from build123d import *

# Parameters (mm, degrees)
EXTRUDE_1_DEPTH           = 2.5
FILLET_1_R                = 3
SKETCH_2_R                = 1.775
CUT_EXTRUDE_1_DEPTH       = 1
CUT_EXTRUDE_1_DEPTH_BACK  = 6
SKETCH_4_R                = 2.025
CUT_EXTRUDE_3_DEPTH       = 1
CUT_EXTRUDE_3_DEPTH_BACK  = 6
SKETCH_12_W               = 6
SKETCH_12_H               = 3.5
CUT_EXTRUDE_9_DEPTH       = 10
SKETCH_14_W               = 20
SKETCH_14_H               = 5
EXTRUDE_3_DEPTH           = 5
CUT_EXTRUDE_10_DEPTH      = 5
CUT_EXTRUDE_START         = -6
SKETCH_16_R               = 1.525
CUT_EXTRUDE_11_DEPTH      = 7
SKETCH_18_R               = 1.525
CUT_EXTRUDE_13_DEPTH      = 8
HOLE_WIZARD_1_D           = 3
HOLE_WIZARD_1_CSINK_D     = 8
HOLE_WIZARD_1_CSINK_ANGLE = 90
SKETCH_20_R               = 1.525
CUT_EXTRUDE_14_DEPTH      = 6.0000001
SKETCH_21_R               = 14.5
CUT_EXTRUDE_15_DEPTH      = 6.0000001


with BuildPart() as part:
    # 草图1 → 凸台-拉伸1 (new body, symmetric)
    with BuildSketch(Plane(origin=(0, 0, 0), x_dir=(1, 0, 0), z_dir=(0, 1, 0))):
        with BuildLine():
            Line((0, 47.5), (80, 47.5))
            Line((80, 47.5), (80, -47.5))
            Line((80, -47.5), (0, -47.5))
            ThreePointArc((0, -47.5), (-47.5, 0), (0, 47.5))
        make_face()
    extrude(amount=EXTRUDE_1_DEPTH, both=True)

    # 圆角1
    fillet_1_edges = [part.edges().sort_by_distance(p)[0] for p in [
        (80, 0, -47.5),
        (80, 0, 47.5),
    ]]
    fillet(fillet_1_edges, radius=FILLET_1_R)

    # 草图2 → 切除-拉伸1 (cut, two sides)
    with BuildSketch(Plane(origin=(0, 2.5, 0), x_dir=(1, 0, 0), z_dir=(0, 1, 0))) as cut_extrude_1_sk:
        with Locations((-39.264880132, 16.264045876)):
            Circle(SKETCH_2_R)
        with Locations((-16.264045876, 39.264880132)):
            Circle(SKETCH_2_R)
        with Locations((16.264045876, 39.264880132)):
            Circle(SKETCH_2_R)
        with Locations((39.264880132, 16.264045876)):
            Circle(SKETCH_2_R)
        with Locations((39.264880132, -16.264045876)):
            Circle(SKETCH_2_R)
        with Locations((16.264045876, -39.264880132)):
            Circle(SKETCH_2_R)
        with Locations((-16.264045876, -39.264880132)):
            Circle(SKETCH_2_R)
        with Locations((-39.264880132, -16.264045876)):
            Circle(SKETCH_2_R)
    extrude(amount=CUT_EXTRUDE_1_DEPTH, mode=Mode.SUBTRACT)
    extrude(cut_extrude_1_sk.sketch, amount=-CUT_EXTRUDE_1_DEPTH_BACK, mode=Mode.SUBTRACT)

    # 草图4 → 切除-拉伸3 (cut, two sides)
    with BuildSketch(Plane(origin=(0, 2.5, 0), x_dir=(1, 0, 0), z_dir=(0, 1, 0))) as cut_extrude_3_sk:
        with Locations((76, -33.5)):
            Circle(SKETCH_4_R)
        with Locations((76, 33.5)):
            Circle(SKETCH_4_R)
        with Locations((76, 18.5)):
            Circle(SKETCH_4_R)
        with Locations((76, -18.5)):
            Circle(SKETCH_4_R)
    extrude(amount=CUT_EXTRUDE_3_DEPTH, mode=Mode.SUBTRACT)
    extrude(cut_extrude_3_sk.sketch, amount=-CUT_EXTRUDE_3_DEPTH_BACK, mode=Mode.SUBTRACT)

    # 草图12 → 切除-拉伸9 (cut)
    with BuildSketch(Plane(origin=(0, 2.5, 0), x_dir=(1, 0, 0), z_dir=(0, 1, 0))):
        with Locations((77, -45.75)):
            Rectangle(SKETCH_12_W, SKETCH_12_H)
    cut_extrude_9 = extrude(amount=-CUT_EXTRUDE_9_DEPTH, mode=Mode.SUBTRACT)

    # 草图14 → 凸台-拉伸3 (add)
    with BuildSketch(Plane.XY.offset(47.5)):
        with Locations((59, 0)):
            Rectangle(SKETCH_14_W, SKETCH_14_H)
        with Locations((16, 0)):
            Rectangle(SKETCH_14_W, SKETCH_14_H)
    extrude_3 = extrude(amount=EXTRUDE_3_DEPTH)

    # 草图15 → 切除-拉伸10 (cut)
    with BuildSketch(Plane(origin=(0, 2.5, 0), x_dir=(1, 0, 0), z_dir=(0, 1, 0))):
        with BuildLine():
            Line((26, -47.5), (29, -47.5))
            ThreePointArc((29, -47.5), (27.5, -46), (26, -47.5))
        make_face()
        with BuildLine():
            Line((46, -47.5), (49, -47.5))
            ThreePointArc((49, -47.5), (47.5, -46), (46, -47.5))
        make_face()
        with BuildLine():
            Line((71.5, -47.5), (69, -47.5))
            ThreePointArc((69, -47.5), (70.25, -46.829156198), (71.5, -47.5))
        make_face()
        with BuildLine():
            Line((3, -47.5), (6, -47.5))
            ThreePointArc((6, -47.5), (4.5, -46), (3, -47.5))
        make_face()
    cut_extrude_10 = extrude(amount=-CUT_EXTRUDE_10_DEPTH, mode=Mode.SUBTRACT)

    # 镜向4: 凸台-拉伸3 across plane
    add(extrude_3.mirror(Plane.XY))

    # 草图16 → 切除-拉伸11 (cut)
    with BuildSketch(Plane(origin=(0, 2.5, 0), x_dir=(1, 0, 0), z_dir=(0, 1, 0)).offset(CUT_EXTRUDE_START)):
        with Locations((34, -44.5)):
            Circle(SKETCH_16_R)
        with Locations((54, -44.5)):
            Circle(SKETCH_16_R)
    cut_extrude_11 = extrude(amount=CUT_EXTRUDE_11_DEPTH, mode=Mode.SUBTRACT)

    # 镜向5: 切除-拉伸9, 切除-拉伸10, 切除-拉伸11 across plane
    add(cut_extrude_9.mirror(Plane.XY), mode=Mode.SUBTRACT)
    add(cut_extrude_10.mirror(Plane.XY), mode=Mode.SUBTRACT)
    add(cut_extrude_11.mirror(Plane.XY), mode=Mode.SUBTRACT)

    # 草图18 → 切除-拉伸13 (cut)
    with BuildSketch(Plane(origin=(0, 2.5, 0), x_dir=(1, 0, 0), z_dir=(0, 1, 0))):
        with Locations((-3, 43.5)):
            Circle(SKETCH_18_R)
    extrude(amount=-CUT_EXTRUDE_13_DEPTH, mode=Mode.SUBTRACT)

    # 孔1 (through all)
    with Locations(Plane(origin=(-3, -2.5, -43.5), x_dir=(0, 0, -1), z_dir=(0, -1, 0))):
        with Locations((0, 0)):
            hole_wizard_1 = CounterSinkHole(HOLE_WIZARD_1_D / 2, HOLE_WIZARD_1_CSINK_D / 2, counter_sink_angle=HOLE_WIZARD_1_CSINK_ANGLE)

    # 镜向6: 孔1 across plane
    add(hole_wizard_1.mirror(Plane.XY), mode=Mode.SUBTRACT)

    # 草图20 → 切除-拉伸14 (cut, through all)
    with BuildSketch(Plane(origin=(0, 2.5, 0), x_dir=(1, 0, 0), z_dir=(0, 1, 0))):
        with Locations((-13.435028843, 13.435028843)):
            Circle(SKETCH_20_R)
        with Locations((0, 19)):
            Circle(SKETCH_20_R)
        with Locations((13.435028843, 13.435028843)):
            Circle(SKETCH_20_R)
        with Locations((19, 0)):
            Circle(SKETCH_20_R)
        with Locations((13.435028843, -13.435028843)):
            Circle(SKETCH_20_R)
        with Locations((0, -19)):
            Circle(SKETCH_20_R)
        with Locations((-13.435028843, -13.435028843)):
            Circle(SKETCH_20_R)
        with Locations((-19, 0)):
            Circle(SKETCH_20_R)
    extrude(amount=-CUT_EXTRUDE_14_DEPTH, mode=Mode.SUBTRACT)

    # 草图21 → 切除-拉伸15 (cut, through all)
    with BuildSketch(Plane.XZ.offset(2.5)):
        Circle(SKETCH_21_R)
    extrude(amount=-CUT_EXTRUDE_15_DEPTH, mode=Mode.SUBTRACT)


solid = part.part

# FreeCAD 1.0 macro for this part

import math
import FreeCAD as App
import Part
import Sketcher


def edges_at(feature, points):
    """Names of the edges that pass closest to the given points."""
    edges = feature.Shape.Edges
    near = lambda p: min(range(len(edges)), key=lambda i: edges[i].distToShape(Part.Vertex(*p))[0])
    return sorted({f"Edge{near(p) + 1}" for p in points})


def add_polygon(sketch, points):
    """Adds a closed chain of lines whose ends are joined by coincident constraints."""
    first, n = sketch.GeometryCount, len(points)
    for a, b in zip(points, points[1:] + points[:1]):
        sketch.addGeometry(Part.LineSegment(App.Vector(*a, 0), App.Vector(*b, 0)), False)
    for i in range(n):
        sketch.addConstraint(Sketcher.Constraint("Coincident", first + i, 2, first + (i + 1) % n, 1))

doc = App.newDocument("Part")
body = doc.addObject("PartDesign::Body", "Body")

# Sketch on XZ plane
sketch1 = doc.addObject("Sketcher::SketchObject", "Sketch")
body.addObject(sketch1)
sketch1.AttachmentSupport = (doc.XZ_Plane, [""])
sketch1.MapMode = "FlatFace"
sketch1.addGeometry(Part.LineSegment(App.Vector(80, -48, 0), App.Vector(0, -48, 0)), False)
sketch1.addGeometry(Part.ArcOfCircle(Part.Circle(App.Vector(0, 0, 0), App.Vector(0, 0, 1), 48), math.radians(90), math.radians(270)), False)
sketch1.addGeometry(Part.LineSegment(App.Vector(0, 48, 0), App.Vector(80, 48, 0)), False)
sketch1.addGeometry(Part.LineSegment(App.Vector(80, 48, 0), App.Vector(80, -48, 0)), False)
sketch1.addConstraint(Sketcher.Constraint("Tangent", 0, 2, 1, 2))
sketch1.addConstraint(Sketcher.Constraint("Tangent", 1, 1, 2, 1))
sketch1.addConstraint(Sketcher.Constraint("Coincident", 2, 2, 3, 1))
sketch1.addConstraint(Sketcher.Constraint("Coincident", 3, 2, 0, 1))
sketch1.addConstraint(Sketcher.Constraint("Horizontal", 0))
sketch1.addConstraint(Sketcher.Constraint("Horizontal", 2))
sketch1.addConstraint(Sketcher.Constraint("Vertical", 3))
sketch1.addConstraint(Sketcher.Constraint("Coincident", 1, 3, -1, 1))
sketch1.addConstraint(Sketcher.Constraint("Radius", 1, 47.5))
sketch1.addConstraint(Sketcher.Constraint("DistanceX", 0, 2, 0, 1, 80.0))
pad1 = doc.addObject("PartDesign::Pad", "Pad")
body.addObject(pad1)
pad1.Profile = sketch1
pad1.Length = 5
pad1.Midplane = True
doc.recompute()

fillet = doc.addObject("PartDesign::Fillet", "Fillet")
body.addObject(fillet)
fillet.Base = (pad1, edges_at(pad1, [(80, 0, -47.5), (80, 0, 47.5)]))
fillet.Radius = 3

# Sketch on XZ plane
sketch2 = doc.addObject("Sketcher::SketchObject", "Sketch001")
body.addObject(sketch2)
sketch2.AttachmentSupport = (doc.XZ_Plane, [""])
sketch2.MapMode = "FlatFace"
sketch2.AttachmentOffset = App.Placement(App.Vector(0, 0, -2.5), App.Rotation())
sketch2.addGeometry(Part.Circle(App.Vector(-39.3, -16.3, 0), App.Vector(0, 0, 1), 1.8), False)
sketch2.addGeometry(Part.Circle(App.Vector(-16.3, -39.3, 0), App.Vector(0, 0, 1), 1.8), False)
sketch2.addGeometry(Part.Circle(App.Vector(16.3, -39.3, 0), App.Vector(0, 0, 1), 1.8), False)
sketch2.addGeometry(Part.Circle(App.Vector(39.3, -16.3, 0), App.Vector(0, 0, 1), 1.8), False)
sketch2.addGeometry(Part.Circle(App.Vector(39.3, 16.3, 0), App.Vector(0, 0, 1), 1.8), False)
sketch2.addGeometry(Part.Circle(App.Vector(16.3, 39.3, 0), App.Vector(0, 0, 1), 1.8), False)
sketch2.addGeometry(Part.Circle(App.Vector(-16.3, 39.3, 0), App.Vector(0, 0, 1), 1.8), False)
sketch2.addGeometry(Part.Circle(App.Vector(-39.3, 16.3, 0), App.Vector(0, 0, 1), 1.8), False)
sketch2.addConstraint(Sketcher.Constraint("Equal", 0, 1))
sketch2.addConstraint(Sketcher.Constraint("Equal", 1, 2))
sketch2.addConstraint(Sketcher.Constraint("Equal", 2, 3))
sketch2.addConstraint(Sketcher.Constraint("Equal", 3, 4))
sketch2.addConstraint(Sketcher.Constraint("Equal", 4, 5))
sketch2.addConstraint(Sketcher.Constraint("Equal", 5, 6))
sketch2.addConstraint(Sketcher.Constraint("Equal", 6, 7))
sketch2.addConstraint(Sketcher.Constraint("Symmetric", 0, 3, 4, 3, -1, 1))
sketch2.addConstraint(Sketcher.Constraint("Symmetric", 1, 3, 5, 3, -1, 1))
sketch2.addConstraint(Sketcher.Constraint("Symmetric", 2, 3, 6, 3, -1, 1))
sketch2.addConstraint(Sketcher.Constraint("Symmetric", 3, 3, 7, 3, -1, 1))
sketch2.addConstraint(Sketcher.Constraint("Symmetric", 1, 3, 2, 3, -2))
sketch2.addConstraint(Sketcher.Constraint("Symmetric", 0, 3, 3, 3, -2))
sketch2.addConstraint(Sketcher.Constraint("Diameter", 0, 3.55))
sketch2.addConstraint(Sketcher.Constraint("DistanceX", 0, 3, -1, 1, 39.26488))
sketch2.addConstraint(Sketcher.Constraint("DistanceY", 1, 3, -1, 1, 39.26488))
sketch2.addConstraint(Sketcher.Constraint("DistanceX", 1, 3, 2, 3, 32.528092))
sketch2.addConstraint(Sketcher.Constraint("DistanceY", 3, 3, 4, 3, 32.528092))
pocket1 = doc.addObject("PartDesign::Pocket", "Pocket")
body.addObject(pocket1)
pocket1.Profile = sketch2
pocket1.Type = "ThroughAll"
pocket1.Midplane = True

# Sketch on XZ plane
sketch3 = doc.addObject("Sketcher::SketchObject", "Sketch002")
body.addObject(sketch3)
sketch3.AttachmentSupport = (doc.XZ_Plane, [""])
sketch3.MapMode = "FlatFace"
sketch3.AttachmentOffset = App.Placement(App.Vector(0, 0, -2.5), App.Rotation())
sketch3.addGeometry(Part.Circle(App.Vector(76, 33.5, 0), App.Vector(0, 0, 1), 2), False)
sketch3.addGeometry(Part.Circle(App.Vector(76, -33.5, 0), App.Vector(0, 0, 1), 2), False)
sketch3.addGeometry(Part.Circle(App.Vector(76, -18.5, 0), App.Vector(0, 0, 1), 2), False)
sketch3.addGeometry(Part.Circle(App.Vector(76, 18.5, 0), App.Vector(0, 0, 1), 2), False)
sketch3.addConstraint(Sketcher.Constraint("Equal", 0, 1))
sketch3.addConstraint(Sketcher.Constraint("Equal", 1, 2))
sketch3.addConstraint(Sketcher.Constraint("Equal", 2, 3))
sketch3.addConstraint(Sketcher.Constraint("Symmetric", 0, 3, 1, 3, -1))
sketch3.addConstraint(Sketcher.Constraint("Symmetric", 2, 3, 3, 3, -1))
sketch3.addConstraint(Sketcher.Constraint("Vertical", 1, 3, 2, 3))
sketch3.addConstraint(Sketcher.Constraint("Diameter", 0, 4.05))
sketch3.addConstraint(Sketcher.Constraint("DistanceX", -1, 1, 0, 3, 76.0))
sketch3.addConstraint(Sketcher.Constraint("DistanceY", 1, 3, 0, 3, 67.0))
sketch3.addConstraint(Sketcher.Constraint("DistanceY", 1, 3, 2, 3, 15.0))
pocket2 = doc.addObject("PartDesign::Pocket", "Pocket001")
body.addObject(pocket2)
pocket2.Profile = sketch3
pocket2.Type = "ThroughAll"
pocket2.Midplane = True

# Sketch on XZ plane
sketch4 = doc.addObject("Sketcher::SketchObject", "Sketch003")
body.addObject(sketch4)
sketch4.AttachmentSupport = (doc.XZ_Plane, [""])
sketch4.MapMode = "FlatFace"
sketch4.AttachmentOffset = App.Placement(App.Vector(0, 0, -2.5), App.Rotation())
add_polygon(sketch4, [(74, 44), (74, 47.5), (80, 47.5), (80, 44)])  # lines 0-3
sketch4.addConstraint(Sketcher.Constraint("Vertical", 0))
sketch4.addConstraint(Sketcher.Constraint("Horizontal", 1))
sketch4.addConstraint(Sketcher.Constraint("Vertical", 2))
sketch4.addConstraint(Sketcher.Constraint("Horizontal", 3))
sketch4.addConstraint(Sketcher.Constraint("DistanceX", 1, 1, 1, 2, 6.0))
sketch4.addConstraint(Sketcher.Constraint("DistanceY", 0, 1, 0, 2, 3.5))
sketch4.addConstraint(Sketcher.Constraint("DistanceX", -1, 1, 0, 2, 74.0))
sketch4.addConstraint(Sketcher.Constraint("DistanceY", -1, 1, 2, 2, 44.0))
pocket3 = doc.addObject("PartDesign::Pocket", "Pocket002")
body.addObject(pocket3)
pocket3.Profile = sketch4
pocket3.Length = 10
pocket3.Reversed = True

# Sketch on XY plane
sketch5 = doc.addObject("Sketcher::SketchObject", "Sketch004")
body.addObject(sketch5)
sketch5.AttachmentSupport = (doc.XY_Plane, [""])
sketch5.MapMode = "FlatFace"
sketch5.AttachmentOffset = App.Placement(App.Vector(0, 0, 47.5), App.Rotation())
add_polygon(sketch5, [(49, 2), (49, -2), (69, -2), (69, 2)])  # lines 0-3
add_polygon(sketch5, [(6, 2), (6, -2), (26, -2), (26, 2)])  # lines 4-7
sketch5.addConstraint(Sketcher.Constraint("Vertical", 0))
sketch5.addConstraint(Sketcher.Constraint("Horizontal", 1))
sketch5.addConstraint(Sketcher.Constraint("Vertical", 2))
sketch5.addConstraint(Sketcher.Constraint("Horizontal", 3))
sketch5.addConstraint(Sketcher.Constraint("Vertical", 4))
sketch5.addConstraint(Sketcher.Constraint("Horizontal", 5))
sketch5.addConstraint(Sketcher.Constraint("Vertical", 6))
sketch5.addConstraint(Sketcher.Constraint("Horizontal", 7))
sketch5.addConstraint(Sketcher.Constraint("Horizontal", 1, 2, 4, 2))
sketch5.addConstraint(Sketcher.Constraint("Horizontal", 3, 2, 6, 2))
sketch5.addConstraint(Sketcher.Constraint("Equal", 3, 5))
sketch5.addConstraint(Sketcher.Constraint("DistanceX", 1, 1, 1, 2, 20.0))
sketch5.addConstraint(Sketcher.Constraint("DistanceY", 0, 2, 0, 1, 5.0))
sketch5.addConstraint(Sketcher.Constraint("DistanceX", -1, 1, 0, 2, 49.0))
sketch5.addConstraint(Sketcher.Constraint("DistanceX", -1, 1, 4, 2, 6.0))
sketch5.addConstraint(Sketcher.Constraint("DistanceY", 0, 2, -1, 1, 2.5))
pad2 = doc.addObject("PartDesign::Pad", "Pad001")
body.addObject(pad2)
pad2.Profile = sketch5
pad2.Length = 5

# Sketch on XZ plane
sketch6 = doc.addObject("Sketcher::SketchObject", "Sketch005")
body.addObject(sketch6)
sketch6.AttachmentSupport = (doc.XZ_Plane, [""])
sketch6.MapMode = "FlatFace"
sketch6.AttachmentOffset = App.Placement(App.Vector(0, 0, -2.5), App.Rotation())
sketch6.addGeometry(Part.LineSegment(App.Vector(26, 47.5, 0), App.Vector(29, 47.5, 0)), False)
sketch6.addGeometry(Part.ArcOfCircle(Part.Circle(App.Vector(27.5, 47.5, 0), App.Vector(0, 0, 1), 1.5), math.radians(180), math.radians(360)), False)
sketch6.addGeometry(Part.LineSegment(App.Vector(46, 47.5, 0), App.Vector(49, 47.5, 0)), False)
sketch6.addGeometry(Part.ArcOfCircle(Part.Circle(App.Vector(47.5, 47.5, 0), App.Vector(0, 0, 1), 1.5), math.radians(180), math.radians(360)), False)
sketch6.addGeometry(Part.LineSegment(App.Vector(69, 47.5, 0), App.Vector(71.5, 47.5, 0)), False)
sketch6.addGeometry(Part.ArcOfCircle(Part.Circle(App.Vector(70.2, 48.3, 0), App.Vector(0, 0, 1), 1.5), math.radians(-146), math.radians(-34)), False)
sketch6.addGeometry(Part.LineSegment(App.Vector(3, 47.5, 0), App.Vector(6, 47.5, 0)), False)
sketch6.addGeometry(Part.ArcOfCircle(Part.Circle(App.Vector(4.5, 47.5, 0), App.Vector(0, 0, 1), 1.5), math.radians(180), math.radians(360)), False)
sketch6.addConstraint(Sketcher.Constraint("Coincident", 0, 1, 1, 1))
sketch6.addConstraint(Sketcher.Constraint("Coincident", 1, 2, 0, 2))
sketch6.addConstraint(Sketcher.Constraint("Coincident", 2, 1, 3, 1))
sketch6.addConstraint(Sketcher.Constraint("Coincident", 3, 2, 2, 2))
sketch6.addConstraint(Sketcher.Constraint("Coincident", 4, 1, 5, 1))
sketch6.addConstraint(Sketcher.Constraint("Coincident", 5, 2, 4, 2))
sketch6.addConstraint(Sketcher.Constraint("Coincident", 6, 1, 7, 1))
sketch6.addConstraint(Sketcher.Constraint("Coincident", 7, 2, 6, 2))
sketch6.addConstraint(Sketcher.Constraint("Horizontal", 0))
sketch6.addConstraint(Sketcher.Constraint("Horizontal", 2))
sketch6.addConstraint(Sketcher.Constraint("Horizontal", 4))
sketch6.addConstraint(Sketcher.Constraint("Horizontal", 6))
sketch6.addConstraint(Sketcher.Constraint("Equal", 1, 3))
sketch6.addConstraint(Sketcher.Constraint("Equal", 3, 5))
sketch6.addConstraint(Sketcher.Constraint("Equal", 5, 7))
sketch6.addConstraint(Sketcher.Constraint("Horizontal", 1, 3, 3, 3))
sketch6.addConstraint(Sketcher.Constraint("Horizontal", 3, 3, 7, 3))
sketch6.addConstraint(Sketcher.Constraint("Horizontal", 7, 3, 0, 1))
sketch6.addConstraint(Sketcher.Constraint("Horizontal", 1, 2, 2, 1))
sketch6.addConstraint(Sketcher.Constraint("Horizontal", 3, 2, 4, 1))
sketch6.addConstraint(Sketcher.Constraint("Horizontal", 5, 2, 6, 1))
sketch6.addConstraint(Sketcher.Constraint("Radius", 1, 1.5))
sketch6.addConstraint(Sketcher.Constraint("DistanceX", 4, 1, 4, 2, 2.5))
sketch6.addConstraint(Sketcher.Constraint("DistanceX", -1, 1, 0, 1, 26.0))
sketch6.addConstraint(Sketcher.Constraint("DistanceX", -1, 1, 2, 1, 46.0))
sketch6.addConstraint(Sketcher.Constraint("DistanceX", -1, 1, 4, 1, 69.0))
sketch6.addConstraint(Sketcher.Constraint("DistanceX", -1, 1, 6, 1, 3.0))
sketch6.addConstraint(Sketcher.Constraint("DistanceY", -1, 1, 1, 3, 47.5))
pocket4 = doc.addObject("PartDesign::Pocket", "Pocket003")
body.addObject(pocket4)
pocket4.Profile = sketch6
pocket4.Length = 5
pocket4.Reversed = True
doc.recompute()

mirrored = doc.addObject("PartDesign::Mirrored", "Mirrored")
body.addObject(mirrored)
mirrored.Originals = [pad2]
mirrored.MirrorPlane = (doc.XY_Plane, [""])
body.Tip = mirrored

# Sketch on XZ plane
sketch7 = doc.addObject("Sketcher::SketchObject", "Sketch006")
body.addObject(sketch7)
sketch7.AttachmentSupport = (doc.XZ_Plane, [""])
sketch7.MapMode = "FlatFace"
sketch7.AttachmentOffset = App.Placement(App.Vector(0, 0, 3.5), App.Rotation())
sketch7.addGeometry(Part.Circle(App.Vector(34, 44.5, 0), App.Vector(0, 0, 1), 1.5), False)
sketch7.addGeometry(Part.Circle(App.Vector(54, 44.5, 0), App.Vector(0, 0, 1), 1.5), False)
sketch7.addConstraint(Sketcher.Constraint("Equal", 0, 1))
sketch7.addConstraint(Sketcher.Constraint("Horizontal", 0, 3, 1, 3))
sketch7.addConstraint(Sketcher.Constraint("Diameter", 0, 3.05))
sketch7.addConstraint(Sketcher.Constraint("DistanceX", -1, 1, 0, 3, 34.0))
sketch7.addConstraint(Sketcher.Constraint("DistanceX", -1, 1, 1, 3, 54.0))
sketch7.addConstraint(Sketcher.Constraint("DistanceY", -1, 1, 0, 3, 44.5))
pocket5 = doc.addObject("PartDesign::Pocket", "Pocket004")
body.addObject(pocket5)
pocket5.Profile = sketch7
pocket5.Length = 7
doc.recompute()

mirrored2 = doc.addObject("PartDesign::Mirrored", "Mirrored001")
body.addObject(mirrored2)
mirrored2.Originals = [pocket3, pocket4, pocket5]
mirrored2.MirrorPlane = (doc.XY_Plane, [""])
body.Tip = mirrored2

# Sketch on XZ plane
sketch8 = doc.addObject("Sketcher::SketchObject", "Sketch007")
body.addObject(sketch8)
sketch8.AttachmentSupport = (doc.XZ_Plane, [""])
sketch8.MapMode = "FlatFace"
sketch8.AttachmentOffset = App.Placement(App.Vector(0, 0, -2.5), App.Rotation())
sketch8.addGeometry(Part.Circle(App.Vector(-3, -43.5, 0), App.Vector(0, 0, 1), 1.5), False)
sketch8.addConstraint(Sketcher.Constraint("Diameter", 0, 3.05))
sketch8.addConstraint(Sketcher.Constraint("DistanceX", 0, 3, -1, 1, 3.0))
sketch8.addConstraint(Sketcher.Constraint("DistanceY", 0, 3, -1, 1, 43.5))
pocket6 = doc.addObject("PartDesign::Pocket", "Pocket005")
body.addObject(pocket6)
pocket6.Profile = sketch8
pocket6.Length = 8
pocket6.Reversed = True

# Sketch on XZ plane
sketch9 = doc.addObject("Sketcher::SketchObject", "Sketch008")
body.addObject(sketch9)
sketch9.AttachmentSupport = (doc.XZ_Plane, [""])
sketch9.MapMode = "FlatFace"
sketch9.AttachmentOffset = App.Placement(App.Vector(0, 0, 2.5), App.Rotation())
sketch9.addGeometry(Part.Circle(App.Vector(-3, -43.5, 0), App.Vector(0, 0, 1), 1.5), False)
sketch9.addConstraint(Sketcher.Constraint("Diameter", 0, 3.0))
sketch9.addConstraint(Sketcher.Constraint("DistanceX", 0, 3, -1, 1, 3.0))
sketch9.addConstraint(Sketcher.Constraint("DistanceY", 0, 3, -1, 1, 43.5))
doc.recompute()
hole = doc.addObject("PartDesign::Hole", "Hole")
body.addObject(hole)
hole.Profile = sketch9
hole.ThreadType = "None"
hole.Diameter = 3
hole.DepthType = "ThroughAll"
hole.HoleCutType = "Countersink"
hole.HoleCutDiameter = 8
hole.HoleCutCountersinkAngle = 90
doc.recompute()

mirrored3 = doc.addObject("PartDesign::Mirrored", "Mirrored002")
body.addObject(mirrored3)
mirrored3.Originals = [hole]
mirrored3.MirrorPlane = (doc.XY_Plane, [""])
body.Tip = mirrored3

# Sketch on XZ plane
sketch10 = doc.addObject("Sketcher::SketchObject", "Sketch009")
body.addObject(sketch10)
sketch10.AttachmentSupport = (doc.XZ_Plane, [""])
sketch10.MapMode = "FlatFace"
sketch10.AttachmentOffset = App.Placement(App.Vector(0, 0, -2.5), App.Rotation())
sketch10.addGeometry(Part.Circle(App.Vector(-13.4, -13.4, 0), App.Vector(0, 0, 1), 1.5), False)
sketch10.addGeometry(Part.Circle(App.Vector(0, -19, 0), App.Vector(0, 0, 1), 1.5), False)
sketch10.addGeometry(Part.Circle(App.Vector(13.4, -13.4, 0), App.Vector(0, 0, 1), 1.5), False)
sketch10.addGeometry(Part.Circle(App.Vector(19, 0, 0), App.Vector(0, 0, 1), 1.5), False)
sketch10.addGeometry(Part.Circle(App.Vector(13.4, 13.4, 0), App.Vector(0, 0, 1), 1.5), False)
sketch10.addGeometry(Part.Circle(App.Vector(0, 19, 0), App.Vector(0, 0, 1), 1.5), False)
sketch10.addGeometry(Part.Circle(App.Vector(-13.4, 13.4, 0), App.Vector(0, 0, 1), 1.5), False)
sketch10.addGeometry(Part.Circle(App.Vector(-19, 0, 0), App.Vector(0, 0, 1), 1.5), False)
sketch10.addConstraint(Sketcher.Constraint("Equal", 0, 1))
sketch10.addConstraint(Sketcher.Constraint("Equal", 1, 2))
sketch10.addConstraint(Sketcher.Constraint("Equal", 2, 3))
sketch10.addConstraint(Sketcher.Constraint("Equal", 3, 4))
sketch10.addConstraint(Sketcher.Constraint("Equal", 4, 5))
sketch10.addConstraint(Sketcher.Constraint("Equal", 5, 6))
sketch10.addConstraint(Sketcher.Constraint("Equal", 6, 7))
sketch10.addConstraint(Sketcher.Constraint("Symmetric", 0, 3, 4, 3, -1, 1))
sketch10.addConstraint(Sketcher.Constraint("Symmetric", 1, 3, 5, 3, -1, 1))
sketch10.addConstraint(Sketcher.Constraint("Symmetric", 2, 3, 6, 3, -1, 1))
sketch10.addConstraint(Sketcher.Constraint("Symmetric", 3, 3, 7, 3, -1, 1))
sketch10.addConstraint(Sketcher.Constraint("Symmetric", 0, 3, 2, 3, -2))
sketch10.addConstraint(Sketcher.Constraint("PointOnObject", 1, 3, -2))
sketch10.addConstraint(Sketcher.Constraint("PointOnObject", 3, 3, -1))
sketch10.addConstraint(Sketcher.Constraint("Diameter", 0, 3.05))
sketch10.addConstraint(Sketcher.Constraint("DistanceY", 1, 3, -1, 1, 19.0))
sketch10.addConstraint(Sketcher.Constraint("DistanceX", -1, 1, 3, 3, 19.0))
sketch10.addConstraint(Sketcher.Constraint("DistanceX", 0, 3, -1, 1, 13.435029))
sketch10.addConstraint(Sketcher.Constraint("DistanceY", 0, 3, -1, 1, 13.435029))
pocket7 = doc.addObject("PartDesign::Pocket", "Pocket006")
body.addObject(pocket7)
pocket7.Profile = sketch10
pocket7.Type = "ThroughAll"
pocket7.Reversed = True

# Sketch on XZ plane
sketch11 = doc.addObject("Sketcher::SketchObject", "Sketch010")
body.addObject(sketch11)
sketch11.AttachmentSupport = (doc.XZ_Plane, [""])
sketch11.MapMode = "FlatFace"
sketch11.AttachmentOffset = App.Placement(App.Vector(0, 0, 2.5), App.Rotation())
sketch11.addGeometry(Part.Circle(App.Vector(0, 0, 0), App.Vector(0, 0, 1), 14), False)
sketch11.addConstraint(Sketcher.Constraint("Coincident", 0, 3, -1, 1))
sketch11.addConstraint(Sketcher.Constraint("Diameter", 0, 29.0))
pocket8 = doc.addObject("PartDesign::Pocket", "Pocket007")
body.addObject(pocket8)
pocket8.Profile = sketch11
pocket8.Type = "ThroughAll"

doc.recompute()
